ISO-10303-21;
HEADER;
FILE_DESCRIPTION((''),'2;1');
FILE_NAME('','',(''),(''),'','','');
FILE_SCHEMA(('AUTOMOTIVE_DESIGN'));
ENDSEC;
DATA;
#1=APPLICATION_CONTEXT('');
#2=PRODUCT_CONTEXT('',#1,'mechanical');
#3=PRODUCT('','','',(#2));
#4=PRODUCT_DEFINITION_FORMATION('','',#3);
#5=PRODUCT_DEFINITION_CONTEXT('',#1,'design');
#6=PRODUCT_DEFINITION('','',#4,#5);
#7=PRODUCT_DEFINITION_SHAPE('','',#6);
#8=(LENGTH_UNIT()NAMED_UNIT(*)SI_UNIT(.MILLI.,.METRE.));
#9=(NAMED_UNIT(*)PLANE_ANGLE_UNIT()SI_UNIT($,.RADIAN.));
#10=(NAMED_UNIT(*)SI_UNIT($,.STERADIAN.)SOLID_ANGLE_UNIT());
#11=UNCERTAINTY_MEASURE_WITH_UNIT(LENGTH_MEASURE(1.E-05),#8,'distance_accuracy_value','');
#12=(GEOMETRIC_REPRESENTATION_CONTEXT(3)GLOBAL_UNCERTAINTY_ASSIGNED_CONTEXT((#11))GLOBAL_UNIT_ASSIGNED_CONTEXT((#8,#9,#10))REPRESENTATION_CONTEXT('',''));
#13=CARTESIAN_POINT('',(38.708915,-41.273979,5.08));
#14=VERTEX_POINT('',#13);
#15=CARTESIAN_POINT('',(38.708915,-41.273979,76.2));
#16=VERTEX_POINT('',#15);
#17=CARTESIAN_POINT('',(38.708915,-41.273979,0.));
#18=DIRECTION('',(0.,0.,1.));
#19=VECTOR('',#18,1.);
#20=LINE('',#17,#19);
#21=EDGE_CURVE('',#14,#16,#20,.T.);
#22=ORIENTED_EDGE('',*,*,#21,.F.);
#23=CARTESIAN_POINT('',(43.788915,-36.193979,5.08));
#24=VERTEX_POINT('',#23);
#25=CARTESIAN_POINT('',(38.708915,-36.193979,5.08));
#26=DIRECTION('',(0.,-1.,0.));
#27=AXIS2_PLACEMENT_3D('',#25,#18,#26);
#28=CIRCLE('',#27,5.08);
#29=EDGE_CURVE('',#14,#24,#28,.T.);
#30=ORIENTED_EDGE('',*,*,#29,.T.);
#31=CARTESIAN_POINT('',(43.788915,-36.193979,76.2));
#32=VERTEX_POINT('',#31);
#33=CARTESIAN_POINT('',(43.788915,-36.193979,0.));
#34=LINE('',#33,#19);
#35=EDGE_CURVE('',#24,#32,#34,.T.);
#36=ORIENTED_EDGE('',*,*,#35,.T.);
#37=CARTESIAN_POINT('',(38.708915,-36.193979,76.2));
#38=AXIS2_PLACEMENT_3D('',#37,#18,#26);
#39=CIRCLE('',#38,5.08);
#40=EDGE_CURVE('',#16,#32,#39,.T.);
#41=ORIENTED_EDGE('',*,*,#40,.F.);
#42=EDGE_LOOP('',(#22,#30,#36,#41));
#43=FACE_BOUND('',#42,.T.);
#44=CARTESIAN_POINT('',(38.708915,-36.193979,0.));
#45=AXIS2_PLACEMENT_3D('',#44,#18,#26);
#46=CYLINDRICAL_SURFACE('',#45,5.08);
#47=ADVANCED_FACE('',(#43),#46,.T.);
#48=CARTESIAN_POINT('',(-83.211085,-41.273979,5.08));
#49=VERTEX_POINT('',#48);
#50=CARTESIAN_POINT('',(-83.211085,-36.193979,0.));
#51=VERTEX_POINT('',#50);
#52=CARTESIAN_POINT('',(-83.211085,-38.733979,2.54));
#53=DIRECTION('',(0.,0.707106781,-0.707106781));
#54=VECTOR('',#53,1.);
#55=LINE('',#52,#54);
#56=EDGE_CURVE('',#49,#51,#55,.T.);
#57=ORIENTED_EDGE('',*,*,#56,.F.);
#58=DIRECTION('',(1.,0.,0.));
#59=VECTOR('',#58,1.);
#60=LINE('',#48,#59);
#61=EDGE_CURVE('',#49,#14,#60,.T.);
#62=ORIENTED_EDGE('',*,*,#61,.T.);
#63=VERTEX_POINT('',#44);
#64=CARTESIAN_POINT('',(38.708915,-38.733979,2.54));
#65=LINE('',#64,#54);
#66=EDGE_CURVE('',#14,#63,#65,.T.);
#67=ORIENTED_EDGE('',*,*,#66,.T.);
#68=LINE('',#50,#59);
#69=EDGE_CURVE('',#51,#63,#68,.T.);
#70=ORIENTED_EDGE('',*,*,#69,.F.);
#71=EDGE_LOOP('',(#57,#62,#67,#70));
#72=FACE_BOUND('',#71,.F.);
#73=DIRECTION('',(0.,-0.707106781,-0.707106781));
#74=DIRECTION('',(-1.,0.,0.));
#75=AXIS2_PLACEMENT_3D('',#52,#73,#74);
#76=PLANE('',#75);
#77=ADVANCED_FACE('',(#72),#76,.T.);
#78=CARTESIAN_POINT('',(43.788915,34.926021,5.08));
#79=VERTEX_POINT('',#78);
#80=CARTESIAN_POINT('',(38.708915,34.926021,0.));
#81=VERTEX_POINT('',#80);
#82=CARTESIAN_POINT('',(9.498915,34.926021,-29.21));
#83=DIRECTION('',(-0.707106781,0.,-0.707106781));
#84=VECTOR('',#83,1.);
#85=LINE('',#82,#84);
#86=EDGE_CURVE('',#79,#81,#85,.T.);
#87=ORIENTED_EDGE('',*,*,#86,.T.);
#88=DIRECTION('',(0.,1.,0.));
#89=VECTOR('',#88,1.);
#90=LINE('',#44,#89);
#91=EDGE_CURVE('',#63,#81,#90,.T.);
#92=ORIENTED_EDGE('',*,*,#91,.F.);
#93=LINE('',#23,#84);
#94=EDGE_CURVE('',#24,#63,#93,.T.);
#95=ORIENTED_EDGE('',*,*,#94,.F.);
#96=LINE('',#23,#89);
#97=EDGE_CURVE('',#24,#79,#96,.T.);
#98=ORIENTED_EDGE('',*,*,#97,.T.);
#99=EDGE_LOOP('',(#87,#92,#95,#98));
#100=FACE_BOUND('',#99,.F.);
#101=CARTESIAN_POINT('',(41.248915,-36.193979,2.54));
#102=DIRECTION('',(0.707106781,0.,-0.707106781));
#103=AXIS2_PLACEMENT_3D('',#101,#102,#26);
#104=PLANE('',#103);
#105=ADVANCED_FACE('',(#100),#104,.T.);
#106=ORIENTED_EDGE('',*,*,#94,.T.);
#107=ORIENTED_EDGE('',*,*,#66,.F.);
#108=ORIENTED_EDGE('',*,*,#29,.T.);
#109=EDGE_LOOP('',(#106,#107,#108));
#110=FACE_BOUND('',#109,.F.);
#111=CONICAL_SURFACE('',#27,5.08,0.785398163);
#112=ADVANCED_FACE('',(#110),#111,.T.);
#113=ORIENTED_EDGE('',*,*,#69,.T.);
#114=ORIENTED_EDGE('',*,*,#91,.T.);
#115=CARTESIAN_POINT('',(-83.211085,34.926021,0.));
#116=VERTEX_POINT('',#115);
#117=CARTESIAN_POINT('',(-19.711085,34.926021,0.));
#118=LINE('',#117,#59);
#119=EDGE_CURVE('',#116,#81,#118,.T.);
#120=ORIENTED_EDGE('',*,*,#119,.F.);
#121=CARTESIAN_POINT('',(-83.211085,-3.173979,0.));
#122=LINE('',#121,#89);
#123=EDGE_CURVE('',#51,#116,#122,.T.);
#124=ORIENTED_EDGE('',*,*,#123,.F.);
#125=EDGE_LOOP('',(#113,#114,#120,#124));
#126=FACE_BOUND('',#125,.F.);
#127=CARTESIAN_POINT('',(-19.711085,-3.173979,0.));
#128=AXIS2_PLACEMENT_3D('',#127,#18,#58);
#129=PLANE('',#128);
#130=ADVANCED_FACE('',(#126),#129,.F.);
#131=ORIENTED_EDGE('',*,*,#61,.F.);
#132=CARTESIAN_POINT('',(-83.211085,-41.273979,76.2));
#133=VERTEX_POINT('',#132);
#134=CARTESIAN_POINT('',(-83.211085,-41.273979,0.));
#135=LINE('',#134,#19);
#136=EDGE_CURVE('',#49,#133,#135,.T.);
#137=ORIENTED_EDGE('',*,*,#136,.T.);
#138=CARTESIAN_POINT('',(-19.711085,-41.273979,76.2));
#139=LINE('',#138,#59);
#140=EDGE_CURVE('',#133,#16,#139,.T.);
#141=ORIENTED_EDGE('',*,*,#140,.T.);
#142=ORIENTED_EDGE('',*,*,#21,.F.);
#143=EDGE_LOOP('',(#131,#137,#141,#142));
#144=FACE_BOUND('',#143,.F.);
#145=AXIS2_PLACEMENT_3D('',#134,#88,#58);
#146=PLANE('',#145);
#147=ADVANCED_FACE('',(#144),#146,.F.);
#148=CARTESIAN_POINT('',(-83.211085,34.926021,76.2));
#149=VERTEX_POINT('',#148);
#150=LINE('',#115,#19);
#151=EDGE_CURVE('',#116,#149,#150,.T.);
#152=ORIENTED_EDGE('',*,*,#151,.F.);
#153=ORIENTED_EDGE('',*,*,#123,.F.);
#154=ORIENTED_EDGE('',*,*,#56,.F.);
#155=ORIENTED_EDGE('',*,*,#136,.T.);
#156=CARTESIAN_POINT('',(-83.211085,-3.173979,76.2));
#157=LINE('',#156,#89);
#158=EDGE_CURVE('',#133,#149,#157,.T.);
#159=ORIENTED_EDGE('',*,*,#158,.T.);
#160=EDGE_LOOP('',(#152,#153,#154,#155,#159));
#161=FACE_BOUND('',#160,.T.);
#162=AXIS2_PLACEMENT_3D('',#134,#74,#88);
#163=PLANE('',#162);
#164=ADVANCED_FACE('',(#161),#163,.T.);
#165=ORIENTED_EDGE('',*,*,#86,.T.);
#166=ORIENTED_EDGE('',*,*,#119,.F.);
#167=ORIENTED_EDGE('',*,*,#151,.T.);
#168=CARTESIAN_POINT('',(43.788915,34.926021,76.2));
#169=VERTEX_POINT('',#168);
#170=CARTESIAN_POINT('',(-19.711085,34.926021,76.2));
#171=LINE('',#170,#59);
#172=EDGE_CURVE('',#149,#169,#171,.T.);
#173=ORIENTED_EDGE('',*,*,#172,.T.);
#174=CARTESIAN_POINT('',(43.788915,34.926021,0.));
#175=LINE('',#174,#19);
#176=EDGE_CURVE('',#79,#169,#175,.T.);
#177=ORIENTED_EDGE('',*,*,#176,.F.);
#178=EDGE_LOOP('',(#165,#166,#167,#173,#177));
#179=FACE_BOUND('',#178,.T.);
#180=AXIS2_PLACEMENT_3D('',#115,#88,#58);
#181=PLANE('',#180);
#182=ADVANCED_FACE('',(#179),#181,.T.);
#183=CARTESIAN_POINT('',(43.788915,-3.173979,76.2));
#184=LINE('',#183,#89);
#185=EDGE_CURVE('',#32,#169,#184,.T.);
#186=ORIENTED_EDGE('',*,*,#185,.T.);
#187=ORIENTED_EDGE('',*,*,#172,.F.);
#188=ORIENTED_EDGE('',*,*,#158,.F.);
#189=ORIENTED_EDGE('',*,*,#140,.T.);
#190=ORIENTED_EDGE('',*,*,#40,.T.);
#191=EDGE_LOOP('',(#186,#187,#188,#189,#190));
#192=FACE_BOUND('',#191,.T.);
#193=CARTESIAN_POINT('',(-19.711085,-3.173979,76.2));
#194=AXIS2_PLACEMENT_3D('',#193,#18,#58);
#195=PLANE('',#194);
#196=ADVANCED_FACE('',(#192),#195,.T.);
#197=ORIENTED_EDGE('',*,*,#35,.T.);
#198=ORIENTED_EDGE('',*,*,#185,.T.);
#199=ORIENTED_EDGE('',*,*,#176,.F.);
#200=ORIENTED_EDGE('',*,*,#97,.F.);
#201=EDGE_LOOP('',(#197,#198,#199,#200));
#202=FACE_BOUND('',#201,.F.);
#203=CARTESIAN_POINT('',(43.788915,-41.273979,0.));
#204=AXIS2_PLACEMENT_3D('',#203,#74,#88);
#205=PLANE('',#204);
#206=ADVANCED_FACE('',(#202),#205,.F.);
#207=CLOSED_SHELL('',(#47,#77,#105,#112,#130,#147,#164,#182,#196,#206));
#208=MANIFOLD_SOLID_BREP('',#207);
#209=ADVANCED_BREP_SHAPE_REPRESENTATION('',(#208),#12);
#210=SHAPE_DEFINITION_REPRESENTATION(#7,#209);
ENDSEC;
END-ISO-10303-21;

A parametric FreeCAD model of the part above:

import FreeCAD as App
import Part
import Sketcher

V = App.Vector
Q = App.Units.Quantity


def edges_at(feature, points):
    """Names of the edges that pass closest to the given points."""
    edges = feature.Shape.Edges
    near = lambda p: min(range(len(edges)), key=lambda i: edges[i].distToShape(Part.Vertex(*p))[0])
    return sorted({f"Edge{near(p) + 1}" for p in points})


def add_polygon(sketch, points):
    """Adds a closed chain of lines whose ends are joined by coincident constraints."""
    first, n = sketch.GeometryCount, len(points)
    for a, b in zip(points, points[1:] + points[:1]):
        sketch.addGeometry(Part.LineSegment(App.Vector(*a, 0), App.Vector(*b, 0)), False)
    for i in range(n):
        sketch.addConstraint(Sketcher.Constraint("Coincident", first + i, 2, first + (i + 1) % n, 1))

doc = App.newDocument("Part")
body = doc.addObject("PartDesign::Body", "Body")

# Sketch on XY plane
sketch1 = doc.addObject("Sketcher::SketchObject", "Sketch")
body.addObject(sketch1)
sketch1.AttachmentSupport = (doc.XY_Plane, [""])
sketch1.MapMode = "FlatFace"
add_polygon(sketch1, [(-83, 35), (-83, -41), (44, -41), (44, 35)])  # lines 0-3
sketch1.addConstraint([
    Sketcher.Constraint("Vertical", 0),
    Sketcher.Constraint("Horizontal", 1),
    Sketcher.Constraint("Vertical", 2),
    Sketcher.Constraint("Horizontal", 3),
    Sketcher.Constraint("DistanceX", 1, 1, 1, 2, Q("5 in")),
    Sketcher.Constraint("DistanceY", 0, 2, 0, 1, Q("3 in")),
    Sketcher.Constraint("DistanceY", 0, 2, -1, 1, Q("41.273979 mm")),
    Sketcher.Constraint("DistanceX", 0, 2, -1, 1, Q("83.211085 mm")),
])
pad1 = doc.addObject("PartDesign::Pad", "Pad")
body.addObject(pad1)
pad1.Profile = sketch1
pad1.Length = Q("3 in")

# Sketch on XY plane
sketch2 = doc.addObject("Sketcher::SketchObject", "Sketch001")
body.addObject(sketch2)
sketch2.AttachmentSupport = (doc.XY_Plane, [""])
sketch2.MapMode = "FlatFace"
sketch2.AttachmentOffset = App.Placement(V(0, 0, 3 * 25.4), App.Rotation())
add_polygon(sketch2, [(-32, 0), (-32, -13), (-7, -13), (-7, 0)])  # lines 0-3
sketch2.addConstraint([
    Sketcher.Constraint("Vertical", 0),
    Sketcher.Constraint("Horizontal", 1),
    Sketcher.Constraint("Vertical", 2),
    Sketcher.Constraint("Horizontal", 3),
    Sketcher.Constraint("PointOnObject", 2, 2, -1),
    Sketcher.Constraint("DistanceX", 1, 1, 1, 2, Q("1 in")),
    Sketcher.Constraint("DistanceY", 0, 2, 0, 1, Q("0.5 in")),
    Sketcher.Constraint("DistanceX", 0, 2, -1, 1, Q("32.411085 mm")),
])
pad2 = doc.addObject("PartDesign::Pad", "Pad001")
body.addObject(pad2)
pad2.Profile = sketch2
pad2.Length = Q("0.5 in")
pad2.Reversed = True
doc.recompute()

fillet = doc.addObject("PartDesign::Fillet", "Fillet")
body.addObject(fillet)
fillet.Base = (pad2, edges_at(pad2, [(43.789, -41.274, 38.1)]))
fillet.Radius = Q("0.2 in")
doc.recompute()

chamfer = doc.addObject("PartDesign::Chamfer", "Chamfer")
body.addObject(chamfer)
chamfer.Base = (fillet, edges_at(fillet, [(-22.251, -41.274, 0)]))
chamfer.Size = Q("0.2 in")

doc.recompute()
